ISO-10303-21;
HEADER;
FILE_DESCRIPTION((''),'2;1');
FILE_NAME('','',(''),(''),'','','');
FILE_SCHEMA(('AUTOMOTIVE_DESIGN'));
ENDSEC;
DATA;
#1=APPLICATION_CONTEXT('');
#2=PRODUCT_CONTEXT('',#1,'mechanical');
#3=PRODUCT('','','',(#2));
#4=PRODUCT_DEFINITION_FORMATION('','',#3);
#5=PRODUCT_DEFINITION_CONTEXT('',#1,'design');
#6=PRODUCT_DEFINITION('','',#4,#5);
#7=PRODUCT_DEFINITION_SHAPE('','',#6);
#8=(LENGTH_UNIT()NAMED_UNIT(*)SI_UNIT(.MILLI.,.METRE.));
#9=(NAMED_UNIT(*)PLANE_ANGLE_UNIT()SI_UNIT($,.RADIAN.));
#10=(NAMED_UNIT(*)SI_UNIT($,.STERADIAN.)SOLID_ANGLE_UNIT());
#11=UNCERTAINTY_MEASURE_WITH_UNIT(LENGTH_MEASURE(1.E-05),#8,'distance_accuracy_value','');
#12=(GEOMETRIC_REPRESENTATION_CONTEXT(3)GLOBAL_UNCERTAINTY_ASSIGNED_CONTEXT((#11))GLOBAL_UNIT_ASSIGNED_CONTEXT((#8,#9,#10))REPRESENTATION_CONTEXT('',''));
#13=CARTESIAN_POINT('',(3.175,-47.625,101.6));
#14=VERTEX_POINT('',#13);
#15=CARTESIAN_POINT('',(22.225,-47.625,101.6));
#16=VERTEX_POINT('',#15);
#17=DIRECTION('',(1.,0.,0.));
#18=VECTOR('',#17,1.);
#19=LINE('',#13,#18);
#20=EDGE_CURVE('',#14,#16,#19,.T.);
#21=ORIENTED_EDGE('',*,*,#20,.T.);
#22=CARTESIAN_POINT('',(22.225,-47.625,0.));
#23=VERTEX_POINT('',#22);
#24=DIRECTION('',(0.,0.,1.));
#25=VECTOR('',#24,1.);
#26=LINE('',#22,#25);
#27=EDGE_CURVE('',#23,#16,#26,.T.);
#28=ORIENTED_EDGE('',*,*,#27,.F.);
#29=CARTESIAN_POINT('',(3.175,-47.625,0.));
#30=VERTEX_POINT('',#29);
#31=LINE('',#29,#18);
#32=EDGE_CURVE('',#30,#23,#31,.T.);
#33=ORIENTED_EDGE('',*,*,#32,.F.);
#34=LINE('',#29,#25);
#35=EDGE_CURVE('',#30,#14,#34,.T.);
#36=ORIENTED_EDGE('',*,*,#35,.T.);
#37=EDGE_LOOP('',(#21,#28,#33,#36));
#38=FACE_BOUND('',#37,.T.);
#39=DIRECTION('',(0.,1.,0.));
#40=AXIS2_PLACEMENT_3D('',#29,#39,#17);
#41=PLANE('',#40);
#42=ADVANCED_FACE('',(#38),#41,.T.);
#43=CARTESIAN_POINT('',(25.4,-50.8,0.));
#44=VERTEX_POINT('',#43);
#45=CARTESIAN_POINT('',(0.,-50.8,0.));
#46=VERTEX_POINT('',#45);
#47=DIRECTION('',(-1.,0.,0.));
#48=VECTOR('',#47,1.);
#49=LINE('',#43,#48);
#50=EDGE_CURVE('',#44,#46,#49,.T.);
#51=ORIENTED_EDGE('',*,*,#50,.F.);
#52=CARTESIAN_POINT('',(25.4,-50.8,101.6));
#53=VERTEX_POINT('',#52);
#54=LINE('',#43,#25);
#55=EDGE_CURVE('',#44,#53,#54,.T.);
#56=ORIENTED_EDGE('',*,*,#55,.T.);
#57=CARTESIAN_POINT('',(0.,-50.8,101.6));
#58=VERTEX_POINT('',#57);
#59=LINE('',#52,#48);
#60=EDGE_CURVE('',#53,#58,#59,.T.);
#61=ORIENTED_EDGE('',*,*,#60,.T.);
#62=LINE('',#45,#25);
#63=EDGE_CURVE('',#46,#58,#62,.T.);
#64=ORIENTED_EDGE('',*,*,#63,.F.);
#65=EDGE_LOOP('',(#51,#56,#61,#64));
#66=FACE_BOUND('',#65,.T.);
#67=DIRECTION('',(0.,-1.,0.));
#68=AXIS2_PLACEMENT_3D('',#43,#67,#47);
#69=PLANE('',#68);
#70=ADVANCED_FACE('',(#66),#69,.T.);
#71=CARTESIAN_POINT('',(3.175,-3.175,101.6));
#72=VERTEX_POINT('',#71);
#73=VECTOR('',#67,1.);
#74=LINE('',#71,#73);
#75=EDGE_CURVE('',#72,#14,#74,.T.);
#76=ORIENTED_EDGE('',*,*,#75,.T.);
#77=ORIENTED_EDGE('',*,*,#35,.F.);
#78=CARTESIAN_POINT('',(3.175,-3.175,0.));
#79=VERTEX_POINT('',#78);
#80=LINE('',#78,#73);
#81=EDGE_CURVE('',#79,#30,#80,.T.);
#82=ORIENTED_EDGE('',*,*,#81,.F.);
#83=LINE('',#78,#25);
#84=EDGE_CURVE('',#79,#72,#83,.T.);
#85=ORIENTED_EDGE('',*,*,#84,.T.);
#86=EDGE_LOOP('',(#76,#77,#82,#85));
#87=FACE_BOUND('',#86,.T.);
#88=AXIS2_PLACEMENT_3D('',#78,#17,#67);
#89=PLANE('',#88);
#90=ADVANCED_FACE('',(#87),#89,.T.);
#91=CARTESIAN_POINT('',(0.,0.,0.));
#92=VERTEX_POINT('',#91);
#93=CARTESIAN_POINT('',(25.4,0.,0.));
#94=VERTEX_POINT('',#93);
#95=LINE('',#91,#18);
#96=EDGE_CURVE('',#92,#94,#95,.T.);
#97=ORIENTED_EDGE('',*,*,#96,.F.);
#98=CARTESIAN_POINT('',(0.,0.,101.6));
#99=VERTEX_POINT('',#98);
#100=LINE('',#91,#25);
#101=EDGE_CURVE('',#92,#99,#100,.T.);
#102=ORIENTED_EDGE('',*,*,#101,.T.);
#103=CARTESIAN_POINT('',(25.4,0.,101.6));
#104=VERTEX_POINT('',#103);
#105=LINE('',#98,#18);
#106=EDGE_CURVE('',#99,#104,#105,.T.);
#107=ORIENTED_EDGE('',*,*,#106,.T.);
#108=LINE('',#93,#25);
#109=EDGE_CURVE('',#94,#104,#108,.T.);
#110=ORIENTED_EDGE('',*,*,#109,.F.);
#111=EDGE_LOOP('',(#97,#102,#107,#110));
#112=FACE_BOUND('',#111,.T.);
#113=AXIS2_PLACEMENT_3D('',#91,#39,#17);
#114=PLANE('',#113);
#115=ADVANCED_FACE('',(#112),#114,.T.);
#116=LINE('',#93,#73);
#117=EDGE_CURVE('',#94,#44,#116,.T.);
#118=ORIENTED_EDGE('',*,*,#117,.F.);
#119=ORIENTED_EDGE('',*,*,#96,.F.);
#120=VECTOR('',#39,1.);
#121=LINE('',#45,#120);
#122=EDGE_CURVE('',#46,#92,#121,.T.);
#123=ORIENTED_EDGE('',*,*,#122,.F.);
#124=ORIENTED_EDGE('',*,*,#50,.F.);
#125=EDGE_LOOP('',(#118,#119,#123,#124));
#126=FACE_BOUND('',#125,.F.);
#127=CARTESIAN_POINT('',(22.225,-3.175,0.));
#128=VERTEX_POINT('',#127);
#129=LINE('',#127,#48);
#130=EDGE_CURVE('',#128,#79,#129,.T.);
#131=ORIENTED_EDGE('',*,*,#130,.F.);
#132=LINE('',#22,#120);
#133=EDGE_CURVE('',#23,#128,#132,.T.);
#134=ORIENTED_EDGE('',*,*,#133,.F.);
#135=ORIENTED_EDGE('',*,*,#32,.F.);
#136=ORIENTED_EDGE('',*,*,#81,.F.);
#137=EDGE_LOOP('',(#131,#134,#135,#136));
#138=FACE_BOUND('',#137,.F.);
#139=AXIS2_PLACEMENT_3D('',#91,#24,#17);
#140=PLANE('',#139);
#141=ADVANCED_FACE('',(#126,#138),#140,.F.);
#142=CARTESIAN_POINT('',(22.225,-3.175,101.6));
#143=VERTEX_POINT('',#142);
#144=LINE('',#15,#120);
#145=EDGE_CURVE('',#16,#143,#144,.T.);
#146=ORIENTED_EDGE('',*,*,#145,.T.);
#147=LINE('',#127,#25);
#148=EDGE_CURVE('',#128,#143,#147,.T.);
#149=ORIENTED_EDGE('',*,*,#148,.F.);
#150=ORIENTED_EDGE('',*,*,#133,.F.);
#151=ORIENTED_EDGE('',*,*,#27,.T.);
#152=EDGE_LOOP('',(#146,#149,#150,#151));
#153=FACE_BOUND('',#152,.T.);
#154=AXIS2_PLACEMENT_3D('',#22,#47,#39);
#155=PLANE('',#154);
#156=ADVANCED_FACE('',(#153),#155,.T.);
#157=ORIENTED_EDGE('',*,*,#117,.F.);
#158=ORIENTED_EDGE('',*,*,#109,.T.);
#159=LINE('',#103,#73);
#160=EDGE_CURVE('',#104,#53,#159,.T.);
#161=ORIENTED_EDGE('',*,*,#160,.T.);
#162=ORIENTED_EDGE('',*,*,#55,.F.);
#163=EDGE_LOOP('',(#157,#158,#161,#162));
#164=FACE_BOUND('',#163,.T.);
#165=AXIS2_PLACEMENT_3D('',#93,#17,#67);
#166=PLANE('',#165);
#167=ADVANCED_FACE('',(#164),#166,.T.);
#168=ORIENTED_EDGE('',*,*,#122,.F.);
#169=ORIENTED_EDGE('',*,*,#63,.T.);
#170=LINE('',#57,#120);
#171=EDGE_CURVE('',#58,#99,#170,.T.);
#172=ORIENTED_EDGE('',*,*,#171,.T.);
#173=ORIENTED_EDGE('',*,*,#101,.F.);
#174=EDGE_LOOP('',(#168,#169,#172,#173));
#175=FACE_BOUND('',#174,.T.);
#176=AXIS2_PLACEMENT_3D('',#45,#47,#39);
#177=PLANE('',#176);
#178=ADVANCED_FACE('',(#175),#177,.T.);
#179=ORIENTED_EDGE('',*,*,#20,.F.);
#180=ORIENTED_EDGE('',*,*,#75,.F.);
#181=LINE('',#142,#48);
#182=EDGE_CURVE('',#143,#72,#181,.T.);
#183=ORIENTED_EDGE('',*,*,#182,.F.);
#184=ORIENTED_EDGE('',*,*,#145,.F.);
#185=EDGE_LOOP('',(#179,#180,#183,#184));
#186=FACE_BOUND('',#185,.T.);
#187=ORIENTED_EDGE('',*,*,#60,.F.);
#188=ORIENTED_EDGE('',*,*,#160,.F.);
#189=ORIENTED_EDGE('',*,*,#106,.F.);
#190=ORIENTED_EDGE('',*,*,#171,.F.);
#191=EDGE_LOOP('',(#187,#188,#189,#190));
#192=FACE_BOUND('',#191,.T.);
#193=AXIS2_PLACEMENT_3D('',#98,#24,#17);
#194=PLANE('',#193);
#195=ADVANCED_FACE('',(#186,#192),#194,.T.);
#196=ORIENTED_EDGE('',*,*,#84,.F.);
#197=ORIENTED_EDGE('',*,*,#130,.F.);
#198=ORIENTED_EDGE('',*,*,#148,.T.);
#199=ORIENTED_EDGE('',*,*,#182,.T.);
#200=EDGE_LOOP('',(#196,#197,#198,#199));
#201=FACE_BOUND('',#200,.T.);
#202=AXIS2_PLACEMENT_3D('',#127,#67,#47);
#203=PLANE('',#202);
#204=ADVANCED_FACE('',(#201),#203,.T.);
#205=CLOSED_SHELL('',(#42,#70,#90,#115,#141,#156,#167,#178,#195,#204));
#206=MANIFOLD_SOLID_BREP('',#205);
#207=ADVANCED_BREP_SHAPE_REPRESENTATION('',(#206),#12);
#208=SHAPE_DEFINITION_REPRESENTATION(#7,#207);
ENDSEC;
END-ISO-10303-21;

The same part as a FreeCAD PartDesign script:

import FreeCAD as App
import Part
import Sketcher
from FreeCAD import Vector
Q = App.Units.Quantity


def add_polygon(sketch, points):
    """Adds a closed chain of lines whose ends are joined by coincident constraints."""
    first, n = sketch.GeometryCount, len(points)
    for a, b in zip(points, points[1:] + points[:1]):
        sketch.addGeometry(Part.LineSegment(App.Vector(*a, 0), App.Vector(*b, 0)), False)
    for i in range(n):
        sketch.addConstraint(Sketcher.Constraint("Coincident", first + i, 2, first + (i + 1) % n, 1))

doc = App.newDocument("Part")
params = doc.addObject("Spreadsheet::Sheet", "Params")
for row, (alias, value) in enumerate([
    ("sketch1_width", "1 in"),
    ("sketch1_height", "2 in"),
    ("pad1_length", "4 in"),
], start=1):
    params.set(f"A{row}", alias)
    params.set(f"B{row}", "=" + value)
    params.setAlias(f"B{row}", alias)

body = doc.addObject("PartDesign::Body", "Body")

sketch1 = doc.addObject("Sketcher::SketchObject", "Sketch")
body.addObject(sketch1)
sketch1.AttachmentSupport = (doc.XY_Plane, [""])
sketch1.MapMode = "FlatFace"
add_polygon(sketch1, [(25.4, 0), (0, 0), (0, -50.8), (25.4, -50.8)])
add_polygon(sketch1, [(3.175, -3.175), (22.225, -3.175), (22.225, -47.625), (3.175, -47.625)])
sketch1.addConstraint([
    Sketcher.Constraint("Horizontal", 0),
    Sketcher.Constraint("Vertical", 1),
    Sketcher.Constraint("Horizontal", 2),
    Sketcher.Constraint("Vertical", 3),
    Sketcher.Constraint("Horizontal", 4),
    Sketcher.Constraint("Vertical", 5),
    Sketcher.Constraint("Horizontal", 6),
    Sketcher.Constraint("Vertical", 7),
    Sketcher.Constraint("Coincident", 0, 2, -1, 1),
    Sketcher.Constraint("DistanceX", 0, 2, 0, 1, Q("1 in")),
    Sketcher.Constraint("DistanceY", 1, 2, 1, 1, Q("2 in")),
    Sketcher.Constraint("DistanceY", 4, 2, -1, 1, Q("0.125 in")),
    Sketcher.Constraint("DistanceX", -1, 1, 6, 2, Q("0.125 in")),
    Sketcher.Constraint("DistanceX", 4, 2, 3, 2, Q("0.125 in")),
    Sketcher.Constraint("DistanceY", 2, 2, 5, 2, Q("0.125 in")),
])
sketch1.setExpression("Constraints[17]", "Params.sketch1_width")
sketch1.setExpression("Constraints[18]", "Params.sketch1_height")
pad1 = doc.addObject("PartDesign::Pad", "Pad")
body.addObject(pad1)
pad1.Profile = sketch1
pad1.setExpression("Length", "Params.pad1_length")

doc.recompute()
